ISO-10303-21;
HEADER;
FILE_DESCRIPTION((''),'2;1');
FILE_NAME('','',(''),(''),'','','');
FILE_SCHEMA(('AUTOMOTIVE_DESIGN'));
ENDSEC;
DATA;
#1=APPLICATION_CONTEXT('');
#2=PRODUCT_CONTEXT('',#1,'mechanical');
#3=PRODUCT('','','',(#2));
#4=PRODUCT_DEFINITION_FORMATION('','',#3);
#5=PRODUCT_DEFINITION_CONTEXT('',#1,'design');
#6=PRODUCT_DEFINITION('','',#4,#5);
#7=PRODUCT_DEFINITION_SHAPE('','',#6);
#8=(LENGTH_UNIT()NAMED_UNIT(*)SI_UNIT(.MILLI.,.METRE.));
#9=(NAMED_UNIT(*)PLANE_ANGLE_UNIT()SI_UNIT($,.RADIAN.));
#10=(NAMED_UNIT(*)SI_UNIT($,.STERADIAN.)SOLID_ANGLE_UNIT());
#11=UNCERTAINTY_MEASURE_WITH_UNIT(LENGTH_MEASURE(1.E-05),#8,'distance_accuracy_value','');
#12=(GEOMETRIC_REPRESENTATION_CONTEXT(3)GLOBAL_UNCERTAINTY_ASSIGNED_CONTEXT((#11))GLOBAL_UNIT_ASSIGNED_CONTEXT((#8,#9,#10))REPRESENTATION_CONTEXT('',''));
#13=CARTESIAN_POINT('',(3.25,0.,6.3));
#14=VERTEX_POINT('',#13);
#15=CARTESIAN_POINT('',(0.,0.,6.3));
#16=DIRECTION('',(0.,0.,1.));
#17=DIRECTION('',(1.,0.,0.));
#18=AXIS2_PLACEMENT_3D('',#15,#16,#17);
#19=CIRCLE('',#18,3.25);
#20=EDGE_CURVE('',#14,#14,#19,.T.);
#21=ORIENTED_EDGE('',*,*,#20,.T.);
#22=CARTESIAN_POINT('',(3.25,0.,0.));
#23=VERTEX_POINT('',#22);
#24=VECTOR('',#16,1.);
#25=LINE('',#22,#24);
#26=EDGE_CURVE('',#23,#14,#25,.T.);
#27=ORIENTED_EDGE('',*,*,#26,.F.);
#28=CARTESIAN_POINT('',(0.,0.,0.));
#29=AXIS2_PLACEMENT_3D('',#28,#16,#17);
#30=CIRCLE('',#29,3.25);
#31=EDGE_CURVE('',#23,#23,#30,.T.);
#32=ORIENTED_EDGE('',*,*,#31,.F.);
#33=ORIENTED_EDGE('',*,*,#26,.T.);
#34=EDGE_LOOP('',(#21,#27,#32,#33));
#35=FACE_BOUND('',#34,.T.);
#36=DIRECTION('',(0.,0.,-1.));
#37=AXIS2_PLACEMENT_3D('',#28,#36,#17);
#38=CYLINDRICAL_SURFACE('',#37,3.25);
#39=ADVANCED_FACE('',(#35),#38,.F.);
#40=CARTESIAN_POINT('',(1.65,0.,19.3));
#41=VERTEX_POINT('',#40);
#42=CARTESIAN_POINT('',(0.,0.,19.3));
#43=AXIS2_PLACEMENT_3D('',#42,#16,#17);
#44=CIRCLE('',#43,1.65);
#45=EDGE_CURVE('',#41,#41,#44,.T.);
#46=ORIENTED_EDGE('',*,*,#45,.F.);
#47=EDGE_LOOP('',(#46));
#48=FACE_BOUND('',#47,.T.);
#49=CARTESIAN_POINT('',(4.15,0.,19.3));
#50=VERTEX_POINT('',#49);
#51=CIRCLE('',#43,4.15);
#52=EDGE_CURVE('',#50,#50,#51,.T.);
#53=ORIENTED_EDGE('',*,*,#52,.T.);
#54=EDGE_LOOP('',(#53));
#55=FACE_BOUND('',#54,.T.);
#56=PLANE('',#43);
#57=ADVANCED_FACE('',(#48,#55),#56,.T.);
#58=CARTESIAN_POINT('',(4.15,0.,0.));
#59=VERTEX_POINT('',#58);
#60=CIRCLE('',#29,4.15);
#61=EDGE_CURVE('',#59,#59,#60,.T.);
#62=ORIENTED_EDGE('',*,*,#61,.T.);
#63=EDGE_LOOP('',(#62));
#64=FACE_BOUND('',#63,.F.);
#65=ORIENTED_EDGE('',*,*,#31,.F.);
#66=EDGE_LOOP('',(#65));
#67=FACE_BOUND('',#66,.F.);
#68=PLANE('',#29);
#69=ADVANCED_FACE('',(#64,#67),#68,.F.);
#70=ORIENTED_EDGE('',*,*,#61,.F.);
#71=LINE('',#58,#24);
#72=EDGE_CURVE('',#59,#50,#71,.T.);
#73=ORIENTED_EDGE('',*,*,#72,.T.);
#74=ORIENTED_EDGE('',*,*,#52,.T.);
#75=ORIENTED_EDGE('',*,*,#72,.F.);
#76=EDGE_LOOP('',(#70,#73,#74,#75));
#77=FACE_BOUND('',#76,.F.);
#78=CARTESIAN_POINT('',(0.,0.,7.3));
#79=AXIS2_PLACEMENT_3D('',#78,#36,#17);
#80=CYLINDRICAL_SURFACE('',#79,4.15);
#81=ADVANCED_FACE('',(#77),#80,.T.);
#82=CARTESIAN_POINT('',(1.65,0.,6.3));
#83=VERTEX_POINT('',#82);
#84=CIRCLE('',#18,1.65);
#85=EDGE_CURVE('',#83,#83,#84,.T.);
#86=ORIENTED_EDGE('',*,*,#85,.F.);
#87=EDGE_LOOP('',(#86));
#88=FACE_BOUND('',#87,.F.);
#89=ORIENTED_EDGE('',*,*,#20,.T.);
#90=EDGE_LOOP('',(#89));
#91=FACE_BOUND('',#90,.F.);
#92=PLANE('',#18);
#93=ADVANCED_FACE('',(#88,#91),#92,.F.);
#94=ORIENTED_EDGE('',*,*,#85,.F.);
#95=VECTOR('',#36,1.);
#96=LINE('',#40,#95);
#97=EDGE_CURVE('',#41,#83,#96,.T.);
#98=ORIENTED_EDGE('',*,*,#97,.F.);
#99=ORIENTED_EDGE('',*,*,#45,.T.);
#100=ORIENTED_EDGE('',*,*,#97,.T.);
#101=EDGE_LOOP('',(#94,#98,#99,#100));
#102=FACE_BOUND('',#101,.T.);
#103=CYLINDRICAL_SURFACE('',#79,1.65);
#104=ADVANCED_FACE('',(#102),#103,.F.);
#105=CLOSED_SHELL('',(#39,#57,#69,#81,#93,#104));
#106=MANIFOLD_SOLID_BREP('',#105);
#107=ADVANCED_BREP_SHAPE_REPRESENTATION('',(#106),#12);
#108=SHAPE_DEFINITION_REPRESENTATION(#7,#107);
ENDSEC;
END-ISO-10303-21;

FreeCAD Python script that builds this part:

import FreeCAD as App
import Part
import Sketcher
from FreeCAD import Vector

doc = App.newDocument("Part")
body = doc.addObject("PartDesign::Body", "Body")

# Sketch on XY plane
sketch1 = doc.addObject("Sketcher::SketchObject", "Sketch")
body.addObject(sketch1)
sketch1.AttachmentSupport = (doc.XY_Plane, [""])
sketch1.MapMode = "FlatFace"
sketch1.addGeometry([
    Part.Circle(Vector(0, 0, 0), Vector(0, 0, 1), 4.2),
    Part.Circle(Vector(0, 0, 0), Vector(0, 0, 1), 3.2),
], False)
sketch1.addConstraint([
    Sketcher.Constraint("Coincident", 0, 3, -1, 1),
    Sketcher.Constraint("Coincident", 1, 3, -1, 1),
    Sketcher.Constraint("Diameter", 0, 8.3),
    Sketcher.Constraint("Diameter", 1, 6.5),
])
pad1 = doc.addObject("PartDesign::Pad", "Pad")
body.addObject(pad1)
pad1.Profile = sketch1
pad1.Length = 6.3

# Sketch on XY plane
sketch2 = doc.addObject("Sketcher::SketchObject", "Sketch001")
body.addObject(sketch2)
sketch2.AttachmentSupport = (doc.XY_Plane, [""])
sketch2.MapMode = "FlatFace"
sketch2.AttachmentOffset = App.Placement(Vector(0, 0, 6.3), App.Rotation())
sketch2.addGeometry(Part.Circle(Vector(0, 0, 0), Vector(0, 0, 1), 4.2), False)
sketch2.addConstraint([
    Sketcher.Constraint("Coincident", 0, 3, -1, 1),
    Sketcher.Constraint("Diameter", 0, 8.3),
])
pad2 = doc.addObject("PartDesign::Pad", "Pad001")
body.addObject(pad2)
pad2.Profile = sketch2
pad2.Length = 1

# Sketch on XY plane
sketch3 = doc.addObject("Sketcher::SketchObject", "Sketch002")
body.addObject(sketch3)
sketch3.AttachmentSupport = (doc.XY_Plane, [""])
sketch3.MapMode = "FlatFace"
sketch3.AttachmentOffset = App.Placement(Vector(0, 0, 7.3), App.Rotation())
sketch3.addGeometry(Part.Circle(Vector(0, 0, 0), Vector(0, 0, 1), 1.6), False)
sketch3.addConstraint([
    Sketcher.Constraint("Coincident", 0, 3, -1, 1),
    Sketcher.Constraint("Diameter", 0, 3.3),
])
pocket1 = doc.addObject("PartDesign::Pocket", "Pocket")
body.addObject(pocket1)
pocket1.Profile = sketch3
pocket1.Type = "ThroughAll"

# Sketch on XY plane
sketch4 = doc.addObject("Sketcher::SketchObject", "Sketch003")
body.addObject(sketch4)
sketch4.AttachmentSupport = (doc.XY_Plane, [""])
sketch4.MapMode = "FlatFace"
sketch4.AttachmentOffset = App.Placement(Vector(0, 0, 7.3), App.Rotation())
sketch4.addGeometry([
    Part.Circle(Vector(0, 0, 0), Vector(0, 0, 1), 4.2),
    Part.Circle(Vector(0, 0, 0), Vector(0, 0, 1), 1.6),
], False)
sketch4.addConstraint([
    Sketcher.Constraint("Coincident", 0, 3, -1, 1),
    Sketcher.Constraint("Coincident", 1, 3, -1, 1),
    Sketcher.Constraint("Diameter", 0, 8.3),
    Sketcher.Constraint("Diameter", 1, 3.3),
])
pad3 = doc.addObject("PartDesign::Pad", "Pad002")
body.addObject(pad3)
pad3.Profile = sketch4
pad3.Length = 12

doc.recompute()
